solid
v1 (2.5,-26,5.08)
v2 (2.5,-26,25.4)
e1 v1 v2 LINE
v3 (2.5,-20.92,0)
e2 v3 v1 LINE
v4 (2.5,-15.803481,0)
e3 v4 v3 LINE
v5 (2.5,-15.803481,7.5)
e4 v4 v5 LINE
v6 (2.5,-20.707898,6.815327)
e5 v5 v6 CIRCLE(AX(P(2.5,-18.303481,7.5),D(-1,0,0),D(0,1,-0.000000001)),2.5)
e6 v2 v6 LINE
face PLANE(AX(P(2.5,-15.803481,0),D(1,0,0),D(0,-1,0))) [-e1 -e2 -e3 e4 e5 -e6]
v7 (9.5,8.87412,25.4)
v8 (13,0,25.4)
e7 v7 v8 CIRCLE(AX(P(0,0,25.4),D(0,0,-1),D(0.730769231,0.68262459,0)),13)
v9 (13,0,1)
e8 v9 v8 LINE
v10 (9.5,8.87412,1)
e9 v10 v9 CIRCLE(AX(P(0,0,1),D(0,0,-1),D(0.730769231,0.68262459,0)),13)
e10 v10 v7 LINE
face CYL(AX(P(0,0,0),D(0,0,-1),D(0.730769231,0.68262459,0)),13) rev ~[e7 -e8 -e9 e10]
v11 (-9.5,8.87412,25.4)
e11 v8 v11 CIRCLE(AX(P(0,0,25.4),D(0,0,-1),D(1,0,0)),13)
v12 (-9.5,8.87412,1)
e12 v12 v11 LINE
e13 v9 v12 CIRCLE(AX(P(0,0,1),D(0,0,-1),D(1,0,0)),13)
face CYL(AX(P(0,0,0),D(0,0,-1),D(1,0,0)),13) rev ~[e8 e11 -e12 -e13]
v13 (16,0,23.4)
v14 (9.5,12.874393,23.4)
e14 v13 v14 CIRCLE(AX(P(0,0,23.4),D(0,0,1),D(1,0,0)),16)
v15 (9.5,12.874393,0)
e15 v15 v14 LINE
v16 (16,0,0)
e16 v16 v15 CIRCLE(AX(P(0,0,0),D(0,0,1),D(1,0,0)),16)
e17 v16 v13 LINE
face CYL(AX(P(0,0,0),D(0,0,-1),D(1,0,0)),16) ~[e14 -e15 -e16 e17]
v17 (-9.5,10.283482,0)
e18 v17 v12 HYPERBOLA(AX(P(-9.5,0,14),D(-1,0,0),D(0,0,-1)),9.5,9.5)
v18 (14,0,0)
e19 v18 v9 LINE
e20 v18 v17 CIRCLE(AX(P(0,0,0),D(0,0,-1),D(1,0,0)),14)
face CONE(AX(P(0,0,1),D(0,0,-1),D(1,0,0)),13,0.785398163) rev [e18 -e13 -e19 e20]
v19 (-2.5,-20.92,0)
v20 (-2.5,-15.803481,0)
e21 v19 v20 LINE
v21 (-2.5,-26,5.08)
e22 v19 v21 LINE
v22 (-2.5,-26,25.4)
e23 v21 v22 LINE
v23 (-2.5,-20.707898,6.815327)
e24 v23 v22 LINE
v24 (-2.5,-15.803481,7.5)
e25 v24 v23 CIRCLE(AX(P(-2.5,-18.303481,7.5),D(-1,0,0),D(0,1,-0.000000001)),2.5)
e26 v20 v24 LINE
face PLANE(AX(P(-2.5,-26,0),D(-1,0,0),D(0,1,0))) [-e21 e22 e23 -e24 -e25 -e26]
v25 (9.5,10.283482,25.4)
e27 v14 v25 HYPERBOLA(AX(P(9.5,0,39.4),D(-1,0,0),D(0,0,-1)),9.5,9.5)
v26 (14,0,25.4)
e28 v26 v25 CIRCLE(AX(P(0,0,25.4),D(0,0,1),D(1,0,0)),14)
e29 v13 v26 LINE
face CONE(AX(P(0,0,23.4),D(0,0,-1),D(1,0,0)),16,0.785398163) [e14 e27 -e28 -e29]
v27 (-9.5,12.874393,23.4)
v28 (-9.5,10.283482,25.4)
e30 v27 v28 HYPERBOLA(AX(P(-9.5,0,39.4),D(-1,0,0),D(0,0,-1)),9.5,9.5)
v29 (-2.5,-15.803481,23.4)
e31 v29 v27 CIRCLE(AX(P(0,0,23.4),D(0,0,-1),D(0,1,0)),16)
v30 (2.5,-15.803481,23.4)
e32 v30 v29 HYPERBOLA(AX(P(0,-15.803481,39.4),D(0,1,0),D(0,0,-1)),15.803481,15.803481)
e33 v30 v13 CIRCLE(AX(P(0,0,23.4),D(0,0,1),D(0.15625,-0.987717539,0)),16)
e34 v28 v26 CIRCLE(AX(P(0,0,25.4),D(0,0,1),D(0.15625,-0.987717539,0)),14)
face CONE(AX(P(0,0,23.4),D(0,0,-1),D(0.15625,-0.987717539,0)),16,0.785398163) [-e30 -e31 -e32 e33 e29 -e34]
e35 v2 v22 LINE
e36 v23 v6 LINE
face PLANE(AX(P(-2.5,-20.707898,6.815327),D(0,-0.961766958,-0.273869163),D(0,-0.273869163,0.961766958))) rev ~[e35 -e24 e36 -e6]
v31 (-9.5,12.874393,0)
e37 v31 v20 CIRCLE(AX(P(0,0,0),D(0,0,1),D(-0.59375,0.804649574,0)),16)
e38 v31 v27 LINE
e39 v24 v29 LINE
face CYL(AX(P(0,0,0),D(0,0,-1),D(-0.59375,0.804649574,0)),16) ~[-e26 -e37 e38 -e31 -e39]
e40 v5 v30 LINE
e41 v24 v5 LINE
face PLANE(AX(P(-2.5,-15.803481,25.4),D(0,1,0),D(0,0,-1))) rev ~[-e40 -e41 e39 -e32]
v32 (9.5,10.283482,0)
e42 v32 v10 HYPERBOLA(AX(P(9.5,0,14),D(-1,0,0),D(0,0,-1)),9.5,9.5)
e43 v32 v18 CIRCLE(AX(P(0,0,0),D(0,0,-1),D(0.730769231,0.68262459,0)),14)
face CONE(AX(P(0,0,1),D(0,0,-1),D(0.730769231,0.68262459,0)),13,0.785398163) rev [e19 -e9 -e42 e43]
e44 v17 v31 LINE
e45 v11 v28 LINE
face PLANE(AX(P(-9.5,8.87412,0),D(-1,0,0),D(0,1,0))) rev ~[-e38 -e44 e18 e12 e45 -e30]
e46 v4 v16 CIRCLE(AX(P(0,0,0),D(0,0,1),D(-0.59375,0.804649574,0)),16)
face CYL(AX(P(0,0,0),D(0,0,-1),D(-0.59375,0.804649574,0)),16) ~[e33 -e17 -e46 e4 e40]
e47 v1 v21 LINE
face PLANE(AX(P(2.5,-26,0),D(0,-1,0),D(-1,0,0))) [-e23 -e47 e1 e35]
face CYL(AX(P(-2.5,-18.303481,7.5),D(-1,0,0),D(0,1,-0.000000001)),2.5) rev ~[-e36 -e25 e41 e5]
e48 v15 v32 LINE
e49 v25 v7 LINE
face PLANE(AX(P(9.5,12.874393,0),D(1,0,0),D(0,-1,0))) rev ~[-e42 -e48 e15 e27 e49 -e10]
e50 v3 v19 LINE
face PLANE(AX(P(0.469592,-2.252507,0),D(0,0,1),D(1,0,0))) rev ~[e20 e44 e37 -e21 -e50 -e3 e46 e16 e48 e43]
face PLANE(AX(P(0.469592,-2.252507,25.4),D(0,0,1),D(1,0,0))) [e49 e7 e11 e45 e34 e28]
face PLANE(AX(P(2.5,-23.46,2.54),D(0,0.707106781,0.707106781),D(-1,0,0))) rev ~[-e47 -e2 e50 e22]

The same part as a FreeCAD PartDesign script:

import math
import FreeCAD as App
import Part
import Sketcher

V = App.Vector
Q = App.Units.Quantity


def edges_at(feature, points):
    """Names of the edges that pass closest to the given points."""
    edges = feature.Shape.Edges
    near = lambda p: min(range(len(edges)), key=lambda i: edges[i].distToShape(Part.Vertex(*p))[0])
    return sorted({f"Edge{near(p) + 1}" for p in points})

doc = App.newDocument("Part")
body = doc.addObject("PartDesign::Body", "Body")

sketch1 = body.newObject("Sketcher::SketchObject", "Sketch")
sketch1.AttachmentSupport = (doc.getObject("XY_Plane"), [""])
sketch1.MapMode = "FlatFace"
sketch1.addGeometry(Part.LineSegment(V(9.5, 12.9, 0), V(9.5, 8.9, 0)), False)
sketch1.addGeometry(Part.ArcOfCircle(Part.Circle(V(0, 0, 0), V(0, 0, 1), 13), math.radians(0), math.radians(43)), False)
sketch1.addGeometry(Part.ArcOfCircle(Part.Circle(V(0, 0, 0), V(0, 0, 1), 13), math.radians(137), math.radians(360)), False)
sketch1.addGeometry(Part.LineSegment(V(-9.5, 8.9, 0), V(-9.5, 12.9, 0)), False)
sketch1.addGeometry(Part.ArcOfCircle(Part.Circle(V(0, 0, 0), V(0, 0, 1), 16), math.radians(126), math.radians(360)), False)
sketch1.addGeometry(Part.ArcOfCircle(Part.Circle(V(0, 0, 0), V(0, 0, 1), 16), math.radians(0), math.radians(54)), False)
sketch1.addConstraint(Sketcher.Constraint("Coincident", 0, 2, 1, 2))
sketch1.addConstraint(Sketcher.Constraint("Tangent", 1, 1, 2, 2))
sketch1.addConstraint(Sketcher.Constraint("Coincident", 2, 1, 3, 1))
sketch1.addConstraint(Sketcher.Constraint("Coincident", 3, 2, 4, 1))
sketch1.addConstraint(Sketcher.Constraint("Tangent", 4, 2, 5, 1))
sketch1.addConstraint(Sketcher.Constraint("Coincident", 5, 2, 0, 1))
sketch1.addConstraint(Sketcher.Constraint("Vertical", 0))
sketch1.addConstraint(Sketcher.Constraint("Vertical", 3))
sketch1.addConstraint(Sketcher.Constraint("Coincident", 1, 3, -1, 1))
sketch1.addConstraint(Sketcher.Constraint("Coincident", 4, 3, -1, 1))
sketch1.addConstraint(Sketcher.Constraint("Equal", 1, 2))
sketch1.addConstraint(Sketcher.Constraint("Equal", 4, 5))
sketch1.addConstraint(Sketcher.Constraint("PointOnObject", 1, 1, -1))
sketch1.addConstraint(Sketcher.Constraint("PointOnObject", 4, 2, -1))
sketch1.addConstraint(Sketcher.Constraint("Horizontal", 0, 2, 2, 1))
sketch1.addConstraint(Sketcher.Constraint("Radius", 1, Q("13 mm")))
sketch1.addConstraint(Sketcher.Constraint("Radius", 4, Q("16 mm")))
sketch1.addConstraint(Sketcher.Constraint("DistanceX", 2, 1, 0, 2, Q("19 mm")))
pad1 = body.newObject("PartDesign::Pad", "Pad")
pad1.Profile = sketch1
pad1.Length = 25.4

sketch2 = body.newObject("Sketcher::SketchObject", "Sketch001")
sketch2.AttachmentSupport = (doc.getObject("XY_Plane"), [""])
sketch2.MapMode = "FlatFace"
sketch2.addGeometry(Part.LineSegment(V(2, -16, 0), V(2, -26, 0)), False)
sketch2.addGeometry(Part.LineSegment(V(2, -26, 0), V(-2, -26, 0)), False)
sketch2.addGeometry(Part.LineSegment(V(-2, -26, 0), V(-2, -16, 0)), False)
sketch2.addGeometry(Part.ArcOfCircle(Part.Circle(V(0, 0, 0), V(0, 0, 1), 16), math.radians(-98.99), math.radians(-81.01)), False)
sketch2.addConstraint(Sketcher.Constraint("Coincident", 0, 2, 1, 1))
sketch2.addConstraint(Sketcher.Constraint("Coincident", 1, 2, 2, 1))
sketch2.addConstraint(Sketcher.Constraint("Coincident", 2, 2, 3, 1))
sketch2.addConstraint(Sketcher.Constraint("Coincident", 3, 2, 0, 1))
sketch2.addConstraint(Sketcher.Constraint("Vertical", 0))
sketch2.addConstraint(Sketcher.Constraint("Horizontal", 1))
sketch2.addConstraint(Sketcher.Constraint("Vertical", 2))
sketch2.addConstraint(Sketcher.Constraint("Coincident", 3, 3, -1, 1))
sketch2.addConstraint(Sketcher.Constraint("Horizontal", 2, 2, 3, 2))
sketch2.addConstraint(Sketcher.Constraint("Radius", 3, Q("16 mm")))
sketch2.addConstraint(Sketcher.Constraint("DistanceX", 1, 2, 1, 1, Q("5 mm")))
sketch2.addConstraint(Sketcher.Constraint("DistanceY", 0, 2, -1, 1, Q("26 mm")))
pad2 = body.newObject("PartDesign::Pad", "Pad001")
pad2.Profile = sketch2
pad2.Length = 25.4

sketch3 = body.newObject("Sketcher::SketchObject", "Sketch002")
sketch3.AttachmentSupport = (doc.getObject("YZ_Plane"), [""])
sketch3.MapMode = "FlatFace"
sketch3.AttachmentOffset = App.Placement(V(0, 0, -2.5), App.Rotation())
sketch3.addGeometry(Part.LineSegment(V(-20.7, 6.8, 0), V(-26, 25.4, 0)), False)
sketch3.addGeometry(Part.LineSegment(V(-26, 25.4, 0), V(-15.8, 25.4, 0)), False)
sketch3.addGeometry(Part.LineSegment(V(-15.8, 25.4, 0), V(-15.8, 7.5, 0)), False)
sketch3.addGeometry(Part.ArcOfCircle(Part.Circle(V(-18.3, 7.5, 0), V(0, 0, 1), 2.5), math.radians(-164), math.radians(0)), False)
sketch3.addConstraint(Sketcher.Constraint("Coincident", 0, 2, 1, 1))
sketch3.addConstraint(Sketcher.Constraint("Coincident", 1, 2, 2, 1))
sketch3.addConstraint(Sketcher.Constraint("Tangent", 2, 2, 3, 2))
sketch3.addConstraint(Sketcher.Constraint("Tangent", 3, 1, 0, 1))
sketch3.addConstraint(Sketcher.Constraint("Horizontal", 1))
sketch3.addConstraint(Sketcher.Constraint("Vertical", 2))
sketch3.addConstraint(Sketcher.Constraint("Radius", 3, Q("2.5 mm")))
sketch3.addConstraint(Sketcher.Constraint("DistanceY", 2, 2, 2, 1, Q("17.9 mm")))
sketch3.addConstraint(Sketcher.Constraint("DistanceX", 0, 2, -1, 1, Q("26 mm")))
sketch3.addConstraint(Sketcher.Constraint("DistanceY", -1, 1, 3, 3, Q("7.5 mm")))
sketch3.addConstraint(Sketcher.Constraint("DistanceX", 1, 1, 1, 2, Q("10.196519 mm")))
pocket1 = body.newObject("PartDesign::Pocket", "Pocket")
pocket1.Profile = sketch3
pocket1.Length = 25.4
pocket1.Reversed = True
doc.recompute()

chamfer = body.newObject("PartDesign::Chamfer", "Chamfer")
chamfer.Base = (pocket1, edges_at(pocket1, [(0, -26, 0)]))
chamfer.Size = 5.08
doc.recompute()

chamfer2 = body.newObject("PartDesign::Chamfer", "Chamfer001")
chamfer2.Base = (chamfer, edges_at(chamfer, [(-4.77, -12.093, 0)]))
chamfer2.Size = 1
doc.recompute()

chamfer3 = body.newObject("PartDesign::Chamfer", "Chamfer002")
chamfer3.Base = (chamfer2, edges_at(chamfer2, [(14.283, 7.211, 25.4)]))
chamfer3.Size = 2

doc.recompute()
